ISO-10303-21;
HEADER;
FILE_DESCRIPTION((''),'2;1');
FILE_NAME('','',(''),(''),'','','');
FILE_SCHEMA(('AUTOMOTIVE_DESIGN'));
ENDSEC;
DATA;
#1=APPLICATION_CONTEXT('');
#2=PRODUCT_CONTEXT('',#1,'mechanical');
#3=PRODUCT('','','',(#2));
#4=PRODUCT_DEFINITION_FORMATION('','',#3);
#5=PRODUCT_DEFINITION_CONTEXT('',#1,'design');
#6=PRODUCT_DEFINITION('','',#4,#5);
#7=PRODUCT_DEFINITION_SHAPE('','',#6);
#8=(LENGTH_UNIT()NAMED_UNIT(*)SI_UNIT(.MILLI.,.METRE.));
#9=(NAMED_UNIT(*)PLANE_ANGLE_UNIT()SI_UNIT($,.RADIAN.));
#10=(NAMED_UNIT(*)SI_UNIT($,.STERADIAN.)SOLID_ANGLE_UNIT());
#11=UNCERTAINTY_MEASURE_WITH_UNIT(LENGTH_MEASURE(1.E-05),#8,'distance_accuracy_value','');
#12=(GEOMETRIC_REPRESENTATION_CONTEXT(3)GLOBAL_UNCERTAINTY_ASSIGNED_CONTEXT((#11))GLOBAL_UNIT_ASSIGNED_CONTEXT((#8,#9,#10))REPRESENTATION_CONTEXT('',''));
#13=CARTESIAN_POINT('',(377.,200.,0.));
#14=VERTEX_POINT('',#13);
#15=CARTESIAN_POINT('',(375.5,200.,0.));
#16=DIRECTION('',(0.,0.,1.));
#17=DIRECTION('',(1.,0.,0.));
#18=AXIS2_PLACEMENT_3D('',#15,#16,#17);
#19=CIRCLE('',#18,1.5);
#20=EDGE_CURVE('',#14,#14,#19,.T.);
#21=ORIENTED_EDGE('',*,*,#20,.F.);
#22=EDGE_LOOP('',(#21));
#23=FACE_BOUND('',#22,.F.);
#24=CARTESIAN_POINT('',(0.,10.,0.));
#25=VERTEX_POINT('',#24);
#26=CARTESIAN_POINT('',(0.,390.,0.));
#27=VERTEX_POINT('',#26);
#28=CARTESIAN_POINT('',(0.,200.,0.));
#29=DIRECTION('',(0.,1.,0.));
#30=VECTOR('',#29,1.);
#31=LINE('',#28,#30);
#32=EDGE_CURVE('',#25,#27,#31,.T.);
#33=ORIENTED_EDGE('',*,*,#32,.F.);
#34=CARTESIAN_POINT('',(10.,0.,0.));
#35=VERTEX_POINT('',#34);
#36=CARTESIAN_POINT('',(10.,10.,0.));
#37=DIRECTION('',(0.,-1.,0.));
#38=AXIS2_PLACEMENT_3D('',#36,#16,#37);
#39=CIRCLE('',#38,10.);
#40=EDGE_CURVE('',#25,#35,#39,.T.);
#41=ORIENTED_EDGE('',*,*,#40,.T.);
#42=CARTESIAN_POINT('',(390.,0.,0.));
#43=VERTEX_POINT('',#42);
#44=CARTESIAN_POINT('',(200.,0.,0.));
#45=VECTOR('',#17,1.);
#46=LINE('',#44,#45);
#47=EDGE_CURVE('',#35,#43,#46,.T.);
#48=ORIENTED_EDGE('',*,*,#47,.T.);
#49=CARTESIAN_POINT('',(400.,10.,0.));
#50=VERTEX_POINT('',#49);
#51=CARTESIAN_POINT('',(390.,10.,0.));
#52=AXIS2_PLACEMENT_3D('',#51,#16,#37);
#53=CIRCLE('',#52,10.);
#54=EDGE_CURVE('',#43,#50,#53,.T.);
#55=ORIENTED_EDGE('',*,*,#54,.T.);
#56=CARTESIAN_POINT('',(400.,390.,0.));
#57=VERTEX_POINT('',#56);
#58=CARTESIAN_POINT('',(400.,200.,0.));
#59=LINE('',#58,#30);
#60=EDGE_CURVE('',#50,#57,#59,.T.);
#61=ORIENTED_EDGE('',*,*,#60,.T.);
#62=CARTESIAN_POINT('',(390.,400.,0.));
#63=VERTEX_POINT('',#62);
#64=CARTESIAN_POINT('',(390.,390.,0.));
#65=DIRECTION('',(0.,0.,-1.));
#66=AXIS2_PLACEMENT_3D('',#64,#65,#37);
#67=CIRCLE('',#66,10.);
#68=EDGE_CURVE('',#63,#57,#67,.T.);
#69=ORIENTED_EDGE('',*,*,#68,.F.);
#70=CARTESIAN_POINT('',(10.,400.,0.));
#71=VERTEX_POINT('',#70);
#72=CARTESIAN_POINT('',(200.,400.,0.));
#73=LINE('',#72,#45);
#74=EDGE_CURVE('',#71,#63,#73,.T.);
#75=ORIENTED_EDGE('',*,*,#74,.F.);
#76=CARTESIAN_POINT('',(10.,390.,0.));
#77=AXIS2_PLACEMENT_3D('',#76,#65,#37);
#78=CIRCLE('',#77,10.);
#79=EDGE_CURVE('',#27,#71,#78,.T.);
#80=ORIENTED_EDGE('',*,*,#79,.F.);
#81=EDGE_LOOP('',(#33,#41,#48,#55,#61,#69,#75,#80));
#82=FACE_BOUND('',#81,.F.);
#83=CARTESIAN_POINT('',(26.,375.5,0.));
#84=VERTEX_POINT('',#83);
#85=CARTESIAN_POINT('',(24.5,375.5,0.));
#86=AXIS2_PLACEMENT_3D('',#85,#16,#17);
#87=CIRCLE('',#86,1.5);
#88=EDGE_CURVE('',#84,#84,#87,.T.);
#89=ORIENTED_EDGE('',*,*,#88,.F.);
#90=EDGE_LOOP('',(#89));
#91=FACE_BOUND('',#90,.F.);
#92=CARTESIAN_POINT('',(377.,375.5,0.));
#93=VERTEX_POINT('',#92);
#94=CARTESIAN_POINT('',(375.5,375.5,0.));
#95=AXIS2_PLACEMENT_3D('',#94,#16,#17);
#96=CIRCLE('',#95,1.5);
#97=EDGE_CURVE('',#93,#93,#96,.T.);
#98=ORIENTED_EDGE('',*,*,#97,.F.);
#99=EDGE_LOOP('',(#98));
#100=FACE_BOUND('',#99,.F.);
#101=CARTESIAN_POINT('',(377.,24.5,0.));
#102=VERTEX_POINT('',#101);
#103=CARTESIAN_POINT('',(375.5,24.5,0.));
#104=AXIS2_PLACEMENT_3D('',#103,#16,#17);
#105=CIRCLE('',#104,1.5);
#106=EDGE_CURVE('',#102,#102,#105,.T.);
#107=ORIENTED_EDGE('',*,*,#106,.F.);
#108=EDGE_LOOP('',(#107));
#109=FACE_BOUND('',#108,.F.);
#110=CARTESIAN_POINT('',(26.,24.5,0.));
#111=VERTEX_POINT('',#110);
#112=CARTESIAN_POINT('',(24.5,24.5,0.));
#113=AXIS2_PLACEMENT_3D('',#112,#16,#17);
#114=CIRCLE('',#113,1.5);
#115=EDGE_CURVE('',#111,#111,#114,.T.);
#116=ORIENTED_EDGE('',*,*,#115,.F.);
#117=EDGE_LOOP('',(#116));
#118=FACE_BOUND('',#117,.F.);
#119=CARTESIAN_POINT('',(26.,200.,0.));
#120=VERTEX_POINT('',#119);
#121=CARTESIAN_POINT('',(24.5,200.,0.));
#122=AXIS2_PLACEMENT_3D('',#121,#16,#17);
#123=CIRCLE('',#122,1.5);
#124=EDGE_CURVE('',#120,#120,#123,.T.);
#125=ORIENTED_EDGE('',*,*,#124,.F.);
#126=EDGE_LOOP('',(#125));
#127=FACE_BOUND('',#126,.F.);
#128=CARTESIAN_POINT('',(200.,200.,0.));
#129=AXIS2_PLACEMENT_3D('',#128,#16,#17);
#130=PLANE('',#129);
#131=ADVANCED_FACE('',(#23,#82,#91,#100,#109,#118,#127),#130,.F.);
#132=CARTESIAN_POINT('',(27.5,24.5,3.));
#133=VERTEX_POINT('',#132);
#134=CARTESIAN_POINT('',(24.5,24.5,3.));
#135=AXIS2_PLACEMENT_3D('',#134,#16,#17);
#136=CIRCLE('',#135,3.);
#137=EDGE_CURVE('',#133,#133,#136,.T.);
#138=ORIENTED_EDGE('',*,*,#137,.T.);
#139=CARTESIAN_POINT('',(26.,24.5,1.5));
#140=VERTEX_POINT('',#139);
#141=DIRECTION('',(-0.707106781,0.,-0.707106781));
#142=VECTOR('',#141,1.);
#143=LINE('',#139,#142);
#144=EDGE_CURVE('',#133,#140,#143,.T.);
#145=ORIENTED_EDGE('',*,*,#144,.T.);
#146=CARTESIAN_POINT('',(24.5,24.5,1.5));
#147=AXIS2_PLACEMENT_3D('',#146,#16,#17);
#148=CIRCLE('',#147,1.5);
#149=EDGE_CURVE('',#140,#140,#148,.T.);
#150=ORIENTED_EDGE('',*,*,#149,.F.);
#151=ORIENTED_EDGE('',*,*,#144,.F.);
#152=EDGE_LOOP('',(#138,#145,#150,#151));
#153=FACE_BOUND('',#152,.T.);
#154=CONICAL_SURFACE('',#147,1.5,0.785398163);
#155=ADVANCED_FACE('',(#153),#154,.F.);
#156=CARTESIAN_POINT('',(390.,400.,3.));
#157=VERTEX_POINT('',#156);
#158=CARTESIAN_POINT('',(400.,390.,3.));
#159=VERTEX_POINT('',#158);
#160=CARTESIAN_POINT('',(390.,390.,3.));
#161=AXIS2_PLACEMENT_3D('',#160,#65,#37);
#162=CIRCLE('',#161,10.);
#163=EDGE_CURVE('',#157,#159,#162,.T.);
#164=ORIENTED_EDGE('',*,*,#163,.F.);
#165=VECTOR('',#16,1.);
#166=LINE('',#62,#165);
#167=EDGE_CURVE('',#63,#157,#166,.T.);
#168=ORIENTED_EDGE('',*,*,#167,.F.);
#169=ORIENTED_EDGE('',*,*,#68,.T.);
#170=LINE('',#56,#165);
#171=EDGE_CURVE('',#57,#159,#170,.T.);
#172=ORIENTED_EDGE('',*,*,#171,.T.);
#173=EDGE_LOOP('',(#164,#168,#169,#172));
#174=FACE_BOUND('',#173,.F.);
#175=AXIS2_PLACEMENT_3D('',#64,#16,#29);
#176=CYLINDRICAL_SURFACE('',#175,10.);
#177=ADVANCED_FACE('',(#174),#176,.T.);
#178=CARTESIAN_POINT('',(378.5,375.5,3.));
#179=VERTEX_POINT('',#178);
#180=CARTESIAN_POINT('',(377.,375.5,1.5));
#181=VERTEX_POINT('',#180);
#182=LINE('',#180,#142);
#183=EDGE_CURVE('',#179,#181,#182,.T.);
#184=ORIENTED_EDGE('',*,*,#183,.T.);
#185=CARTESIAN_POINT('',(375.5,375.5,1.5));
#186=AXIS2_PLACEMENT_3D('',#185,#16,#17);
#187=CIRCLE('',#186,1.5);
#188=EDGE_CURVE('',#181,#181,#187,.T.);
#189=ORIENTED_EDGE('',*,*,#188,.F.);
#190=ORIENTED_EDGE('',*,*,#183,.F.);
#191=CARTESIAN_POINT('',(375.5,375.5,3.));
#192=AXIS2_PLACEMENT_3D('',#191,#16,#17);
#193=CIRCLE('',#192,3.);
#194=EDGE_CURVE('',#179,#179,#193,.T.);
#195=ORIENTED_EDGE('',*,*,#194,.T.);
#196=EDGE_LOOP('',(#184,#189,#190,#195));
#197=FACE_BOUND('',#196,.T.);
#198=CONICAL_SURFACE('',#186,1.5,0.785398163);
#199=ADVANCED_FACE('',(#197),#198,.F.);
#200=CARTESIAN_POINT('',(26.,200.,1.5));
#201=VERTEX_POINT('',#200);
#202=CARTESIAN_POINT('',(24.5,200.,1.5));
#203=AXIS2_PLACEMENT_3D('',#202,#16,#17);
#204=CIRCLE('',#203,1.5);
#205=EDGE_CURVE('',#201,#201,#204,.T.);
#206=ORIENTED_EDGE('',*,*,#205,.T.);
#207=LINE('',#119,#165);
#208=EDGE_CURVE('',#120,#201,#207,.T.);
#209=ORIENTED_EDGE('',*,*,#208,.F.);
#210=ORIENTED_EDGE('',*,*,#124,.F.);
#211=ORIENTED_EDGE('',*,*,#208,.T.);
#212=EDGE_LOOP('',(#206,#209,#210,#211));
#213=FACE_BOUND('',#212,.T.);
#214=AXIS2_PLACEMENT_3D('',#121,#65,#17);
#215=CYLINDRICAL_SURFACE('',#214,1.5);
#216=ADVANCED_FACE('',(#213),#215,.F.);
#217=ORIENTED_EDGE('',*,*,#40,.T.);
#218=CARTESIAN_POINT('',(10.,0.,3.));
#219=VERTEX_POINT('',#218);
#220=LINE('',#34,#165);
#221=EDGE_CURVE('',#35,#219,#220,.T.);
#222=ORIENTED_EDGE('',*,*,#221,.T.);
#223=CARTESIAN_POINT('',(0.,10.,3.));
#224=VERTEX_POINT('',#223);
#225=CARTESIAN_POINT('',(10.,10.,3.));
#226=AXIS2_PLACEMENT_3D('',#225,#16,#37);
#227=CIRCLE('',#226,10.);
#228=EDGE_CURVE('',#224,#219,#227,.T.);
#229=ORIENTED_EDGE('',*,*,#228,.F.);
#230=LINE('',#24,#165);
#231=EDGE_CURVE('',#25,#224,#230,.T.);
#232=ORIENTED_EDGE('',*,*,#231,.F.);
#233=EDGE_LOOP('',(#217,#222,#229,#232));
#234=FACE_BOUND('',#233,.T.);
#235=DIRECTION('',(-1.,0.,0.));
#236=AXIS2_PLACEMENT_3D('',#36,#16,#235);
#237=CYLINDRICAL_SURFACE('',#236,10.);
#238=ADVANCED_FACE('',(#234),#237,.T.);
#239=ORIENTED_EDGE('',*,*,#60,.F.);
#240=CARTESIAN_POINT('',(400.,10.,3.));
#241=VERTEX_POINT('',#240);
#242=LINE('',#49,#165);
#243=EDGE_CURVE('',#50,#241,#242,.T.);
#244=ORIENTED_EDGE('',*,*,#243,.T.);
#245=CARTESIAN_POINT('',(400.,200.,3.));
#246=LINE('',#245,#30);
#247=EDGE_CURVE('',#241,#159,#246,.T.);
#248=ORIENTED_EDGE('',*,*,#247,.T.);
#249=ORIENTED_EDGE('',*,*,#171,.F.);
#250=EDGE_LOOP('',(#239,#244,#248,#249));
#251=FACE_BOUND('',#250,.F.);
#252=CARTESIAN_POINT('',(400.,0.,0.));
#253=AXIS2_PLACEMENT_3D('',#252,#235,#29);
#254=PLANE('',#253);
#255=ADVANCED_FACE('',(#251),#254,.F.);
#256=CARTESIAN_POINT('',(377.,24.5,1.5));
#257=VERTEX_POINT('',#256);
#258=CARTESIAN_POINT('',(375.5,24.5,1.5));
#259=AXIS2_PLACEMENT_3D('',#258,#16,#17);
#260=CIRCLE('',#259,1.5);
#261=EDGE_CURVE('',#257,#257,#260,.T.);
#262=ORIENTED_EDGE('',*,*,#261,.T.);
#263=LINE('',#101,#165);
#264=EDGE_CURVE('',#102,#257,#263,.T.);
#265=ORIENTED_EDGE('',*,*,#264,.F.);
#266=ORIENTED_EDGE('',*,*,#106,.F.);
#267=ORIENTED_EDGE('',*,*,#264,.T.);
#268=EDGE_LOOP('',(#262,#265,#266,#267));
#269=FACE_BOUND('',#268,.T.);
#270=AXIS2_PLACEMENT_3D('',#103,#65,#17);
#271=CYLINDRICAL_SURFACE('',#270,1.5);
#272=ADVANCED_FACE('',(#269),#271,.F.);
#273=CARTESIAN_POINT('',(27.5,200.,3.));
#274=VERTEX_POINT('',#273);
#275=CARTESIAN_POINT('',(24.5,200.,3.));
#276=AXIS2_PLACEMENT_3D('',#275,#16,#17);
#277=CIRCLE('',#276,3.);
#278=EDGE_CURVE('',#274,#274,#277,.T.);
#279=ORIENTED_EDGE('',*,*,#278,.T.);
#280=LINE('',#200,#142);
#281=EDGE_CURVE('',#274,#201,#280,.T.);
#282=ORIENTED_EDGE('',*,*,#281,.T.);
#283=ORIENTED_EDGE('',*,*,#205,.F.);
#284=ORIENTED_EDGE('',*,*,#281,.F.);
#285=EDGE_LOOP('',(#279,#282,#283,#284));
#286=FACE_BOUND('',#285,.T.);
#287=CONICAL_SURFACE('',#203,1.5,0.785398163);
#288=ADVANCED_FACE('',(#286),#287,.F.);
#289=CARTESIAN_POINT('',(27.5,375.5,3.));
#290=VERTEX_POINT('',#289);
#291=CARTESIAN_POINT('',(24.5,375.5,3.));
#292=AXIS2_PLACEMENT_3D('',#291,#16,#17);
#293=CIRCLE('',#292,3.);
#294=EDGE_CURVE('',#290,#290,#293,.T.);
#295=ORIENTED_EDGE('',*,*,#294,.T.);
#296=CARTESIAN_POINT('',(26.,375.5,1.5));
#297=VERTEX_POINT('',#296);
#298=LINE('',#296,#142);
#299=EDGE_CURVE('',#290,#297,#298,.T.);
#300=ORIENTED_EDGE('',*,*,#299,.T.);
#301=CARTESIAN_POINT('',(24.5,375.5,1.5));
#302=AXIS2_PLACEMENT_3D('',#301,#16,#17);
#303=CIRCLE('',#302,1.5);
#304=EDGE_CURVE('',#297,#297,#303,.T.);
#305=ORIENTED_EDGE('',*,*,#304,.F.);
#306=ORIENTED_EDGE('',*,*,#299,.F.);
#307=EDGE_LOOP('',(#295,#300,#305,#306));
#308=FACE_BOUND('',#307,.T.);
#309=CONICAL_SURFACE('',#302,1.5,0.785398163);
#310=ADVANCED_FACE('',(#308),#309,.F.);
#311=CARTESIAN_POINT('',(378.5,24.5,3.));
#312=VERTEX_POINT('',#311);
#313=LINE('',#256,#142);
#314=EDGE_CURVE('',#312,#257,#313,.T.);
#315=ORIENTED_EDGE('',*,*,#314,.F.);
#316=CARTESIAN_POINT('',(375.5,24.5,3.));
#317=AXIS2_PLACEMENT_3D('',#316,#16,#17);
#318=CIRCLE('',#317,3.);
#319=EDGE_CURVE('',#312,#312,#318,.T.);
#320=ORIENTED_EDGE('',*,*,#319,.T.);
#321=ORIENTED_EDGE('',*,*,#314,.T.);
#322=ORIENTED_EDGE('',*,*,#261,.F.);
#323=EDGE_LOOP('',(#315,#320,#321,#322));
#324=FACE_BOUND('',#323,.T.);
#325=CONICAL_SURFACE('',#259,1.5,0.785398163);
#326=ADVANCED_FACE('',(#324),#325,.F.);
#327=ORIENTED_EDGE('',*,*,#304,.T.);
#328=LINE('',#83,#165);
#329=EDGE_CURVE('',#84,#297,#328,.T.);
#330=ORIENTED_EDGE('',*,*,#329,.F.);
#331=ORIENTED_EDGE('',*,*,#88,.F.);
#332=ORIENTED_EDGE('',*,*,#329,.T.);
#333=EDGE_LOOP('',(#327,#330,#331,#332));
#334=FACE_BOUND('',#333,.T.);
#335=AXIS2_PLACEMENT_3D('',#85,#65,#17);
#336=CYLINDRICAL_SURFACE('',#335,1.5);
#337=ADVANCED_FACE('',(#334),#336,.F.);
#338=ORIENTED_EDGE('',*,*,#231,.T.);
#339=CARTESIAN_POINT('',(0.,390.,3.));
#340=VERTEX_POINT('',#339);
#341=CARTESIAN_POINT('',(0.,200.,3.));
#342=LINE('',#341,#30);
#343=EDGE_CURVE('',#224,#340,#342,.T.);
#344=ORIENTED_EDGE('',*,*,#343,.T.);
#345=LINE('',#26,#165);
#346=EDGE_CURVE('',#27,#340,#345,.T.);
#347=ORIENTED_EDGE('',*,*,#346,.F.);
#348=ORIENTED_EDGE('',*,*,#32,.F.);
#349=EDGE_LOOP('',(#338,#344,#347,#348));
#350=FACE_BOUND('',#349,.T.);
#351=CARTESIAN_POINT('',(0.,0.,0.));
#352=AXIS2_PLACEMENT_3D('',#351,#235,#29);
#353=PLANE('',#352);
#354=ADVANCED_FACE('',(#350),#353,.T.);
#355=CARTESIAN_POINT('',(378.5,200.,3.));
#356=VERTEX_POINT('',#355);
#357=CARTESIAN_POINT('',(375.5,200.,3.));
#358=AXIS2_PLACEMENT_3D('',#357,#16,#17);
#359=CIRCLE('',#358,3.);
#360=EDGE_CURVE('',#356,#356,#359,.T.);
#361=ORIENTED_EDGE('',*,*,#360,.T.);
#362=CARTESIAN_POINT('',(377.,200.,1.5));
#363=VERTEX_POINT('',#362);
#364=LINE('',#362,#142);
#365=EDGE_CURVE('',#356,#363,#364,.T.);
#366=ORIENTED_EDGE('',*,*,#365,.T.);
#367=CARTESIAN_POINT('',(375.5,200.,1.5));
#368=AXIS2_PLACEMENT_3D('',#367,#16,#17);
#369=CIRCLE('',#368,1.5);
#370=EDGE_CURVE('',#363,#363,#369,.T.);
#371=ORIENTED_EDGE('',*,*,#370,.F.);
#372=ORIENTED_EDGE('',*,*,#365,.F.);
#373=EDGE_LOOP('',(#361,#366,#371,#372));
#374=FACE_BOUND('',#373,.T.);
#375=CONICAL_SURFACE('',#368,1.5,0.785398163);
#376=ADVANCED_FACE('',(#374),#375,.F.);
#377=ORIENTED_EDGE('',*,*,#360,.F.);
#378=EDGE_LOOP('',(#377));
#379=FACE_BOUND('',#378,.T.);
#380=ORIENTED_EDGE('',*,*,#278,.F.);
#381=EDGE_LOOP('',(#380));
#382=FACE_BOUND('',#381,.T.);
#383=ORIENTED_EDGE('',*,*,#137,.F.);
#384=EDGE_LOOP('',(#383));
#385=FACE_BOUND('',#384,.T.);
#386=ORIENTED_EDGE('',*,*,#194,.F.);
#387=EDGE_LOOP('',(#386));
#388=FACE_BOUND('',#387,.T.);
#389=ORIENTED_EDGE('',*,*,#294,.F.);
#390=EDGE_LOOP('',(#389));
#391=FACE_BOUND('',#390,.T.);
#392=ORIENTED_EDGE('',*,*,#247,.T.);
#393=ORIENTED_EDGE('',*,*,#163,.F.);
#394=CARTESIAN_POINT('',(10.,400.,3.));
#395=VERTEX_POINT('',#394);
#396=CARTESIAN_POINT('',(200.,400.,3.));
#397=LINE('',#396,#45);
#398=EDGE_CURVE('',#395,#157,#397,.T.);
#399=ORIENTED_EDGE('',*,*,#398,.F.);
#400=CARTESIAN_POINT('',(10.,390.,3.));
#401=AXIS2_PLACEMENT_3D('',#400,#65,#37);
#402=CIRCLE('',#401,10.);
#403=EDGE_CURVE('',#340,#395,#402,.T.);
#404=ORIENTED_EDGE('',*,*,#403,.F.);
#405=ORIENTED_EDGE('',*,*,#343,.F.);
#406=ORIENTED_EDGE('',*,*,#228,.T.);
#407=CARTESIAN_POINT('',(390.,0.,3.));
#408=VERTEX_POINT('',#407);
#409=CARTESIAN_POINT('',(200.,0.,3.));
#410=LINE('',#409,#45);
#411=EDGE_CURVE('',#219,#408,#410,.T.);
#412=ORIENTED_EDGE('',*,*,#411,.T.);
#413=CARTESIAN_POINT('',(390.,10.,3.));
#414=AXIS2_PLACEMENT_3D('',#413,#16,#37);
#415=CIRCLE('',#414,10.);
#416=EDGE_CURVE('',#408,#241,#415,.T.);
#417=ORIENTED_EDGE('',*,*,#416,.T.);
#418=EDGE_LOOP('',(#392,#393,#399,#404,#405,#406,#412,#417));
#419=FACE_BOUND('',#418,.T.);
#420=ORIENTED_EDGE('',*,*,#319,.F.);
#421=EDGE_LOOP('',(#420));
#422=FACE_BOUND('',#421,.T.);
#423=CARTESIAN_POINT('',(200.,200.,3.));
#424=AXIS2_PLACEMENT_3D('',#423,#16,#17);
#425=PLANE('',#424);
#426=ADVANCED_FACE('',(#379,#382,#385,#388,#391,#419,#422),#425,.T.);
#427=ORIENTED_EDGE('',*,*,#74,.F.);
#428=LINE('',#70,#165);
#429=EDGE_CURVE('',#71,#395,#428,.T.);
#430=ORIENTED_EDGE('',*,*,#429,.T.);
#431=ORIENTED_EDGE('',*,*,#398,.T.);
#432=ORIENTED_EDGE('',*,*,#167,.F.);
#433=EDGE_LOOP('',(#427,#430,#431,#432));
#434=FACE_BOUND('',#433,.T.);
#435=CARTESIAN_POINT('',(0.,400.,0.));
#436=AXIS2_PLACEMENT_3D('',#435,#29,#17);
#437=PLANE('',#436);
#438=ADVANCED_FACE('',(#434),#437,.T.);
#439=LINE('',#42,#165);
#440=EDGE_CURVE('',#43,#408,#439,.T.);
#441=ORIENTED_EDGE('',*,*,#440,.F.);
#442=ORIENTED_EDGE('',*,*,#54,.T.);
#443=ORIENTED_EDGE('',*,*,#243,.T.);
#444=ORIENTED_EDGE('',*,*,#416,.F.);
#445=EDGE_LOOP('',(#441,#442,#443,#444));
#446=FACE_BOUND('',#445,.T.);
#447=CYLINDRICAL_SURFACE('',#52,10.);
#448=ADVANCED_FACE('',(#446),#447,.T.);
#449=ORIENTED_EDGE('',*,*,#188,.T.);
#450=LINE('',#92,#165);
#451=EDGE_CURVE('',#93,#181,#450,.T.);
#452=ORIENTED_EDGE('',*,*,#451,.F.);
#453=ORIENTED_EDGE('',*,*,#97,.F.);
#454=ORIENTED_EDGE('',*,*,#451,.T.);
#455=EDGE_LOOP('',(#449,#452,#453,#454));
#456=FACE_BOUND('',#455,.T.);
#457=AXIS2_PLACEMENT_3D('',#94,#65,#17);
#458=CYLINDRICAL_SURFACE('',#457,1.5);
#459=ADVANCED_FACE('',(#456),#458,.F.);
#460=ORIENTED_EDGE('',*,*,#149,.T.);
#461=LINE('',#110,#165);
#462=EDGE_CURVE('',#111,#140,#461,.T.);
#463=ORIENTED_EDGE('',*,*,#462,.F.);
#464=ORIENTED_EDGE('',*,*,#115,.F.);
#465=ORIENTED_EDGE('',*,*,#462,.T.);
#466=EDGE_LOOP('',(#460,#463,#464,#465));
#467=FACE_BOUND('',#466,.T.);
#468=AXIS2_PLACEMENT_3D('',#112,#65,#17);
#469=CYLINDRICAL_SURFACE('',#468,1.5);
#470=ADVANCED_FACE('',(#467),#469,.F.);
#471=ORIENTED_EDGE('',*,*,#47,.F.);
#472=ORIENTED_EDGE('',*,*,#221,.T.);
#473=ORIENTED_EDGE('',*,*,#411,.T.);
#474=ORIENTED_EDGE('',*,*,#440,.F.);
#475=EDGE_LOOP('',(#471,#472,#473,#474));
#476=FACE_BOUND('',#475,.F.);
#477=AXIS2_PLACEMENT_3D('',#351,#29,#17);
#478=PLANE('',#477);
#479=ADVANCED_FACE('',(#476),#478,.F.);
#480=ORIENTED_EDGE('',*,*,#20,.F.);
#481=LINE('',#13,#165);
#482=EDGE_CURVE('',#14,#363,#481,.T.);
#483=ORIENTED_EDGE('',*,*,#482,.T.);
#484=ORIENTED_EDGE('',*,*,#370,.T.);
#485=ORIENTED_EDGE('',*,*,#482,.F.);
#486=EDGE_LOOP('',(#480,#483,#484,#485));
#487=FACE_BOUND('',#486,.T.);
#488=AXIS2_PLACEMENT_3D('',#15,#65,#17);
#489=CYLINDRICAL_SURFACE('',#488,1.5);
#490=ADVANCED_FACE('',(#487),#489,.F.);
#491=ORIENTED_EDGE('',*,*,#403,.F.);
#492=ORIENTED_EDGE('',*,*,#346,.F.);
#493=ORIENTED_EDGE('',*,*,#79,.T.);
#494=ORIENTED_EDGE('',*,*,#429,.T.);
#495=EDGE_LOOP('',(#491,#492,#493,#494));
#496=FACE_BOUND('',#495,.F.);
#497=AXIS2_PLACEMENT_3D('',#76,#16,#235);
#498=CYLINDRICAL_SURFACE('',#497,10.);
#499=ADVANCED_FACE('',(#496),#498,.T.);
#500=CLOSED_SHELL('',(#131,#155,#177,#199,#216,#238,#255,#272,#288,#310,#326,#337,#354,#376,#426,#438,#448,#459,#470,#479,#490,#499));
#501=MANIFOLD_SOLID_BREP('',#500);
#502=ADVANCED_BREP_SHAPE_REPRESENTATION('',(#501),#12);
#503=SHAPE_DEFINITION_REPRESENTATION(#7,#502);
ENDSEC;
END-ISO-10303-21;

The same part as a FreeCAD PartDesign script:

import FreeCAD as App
import Part
import Sketcher


def edges_at(feature, points):
    """Names of the edges that pass closest to the given points."""
    edges = feature.Shape.Edges
    near = lambda p: min(range(len(edges)), key=lambda i: edges[i].distToShape(Part.Vertex(*p))[0])
    return sorted({f"Edge{near(p) + 1}" for p in points})

doc = App.newDocument("Part")
body = doc.addObject("PartDesign::Body", "Body")

sketch1 = body.newObject("Sketcher::SketchObject", "Sketch")
sketch1.AttachmentSupport = (doc.getObject("XY_Plane"), [""])
sketch1.MapMode = "FlatFace"
sketch1.addGeometry([
    Part.LineSegment(App.Vector(0, 400, 0), App.Vector(0, 0, 0)),
    Part.LineSegment(App.Vector(0, 0, 0), App.Vector(400, 0, 0)),
    Part.LineSegment(App.Vector(400, 0, 0), App.Vector(400, 400, 0)),
    Part.LineSegment(App.Vector(400, 400, 0), App.Vector(0, 400, 0)),
    Part.Circle(App.Vector(24.5, 24.5, 0), App.Vector(0, 0, 1), 1.5),
    Part.Circle(App.Vector(375.5, 24.5, 0), App.Vector(0, 0, 1), 1.5),
    Part.Circle(App.Vector(24.5, 200, 0), App.Vector(0, 0, 1), 1.5),
    Part.Circle(App.Vector(24.5, 375.5, 0), App.Vector(0, 0, 1), 1.5),
    Part.Circle(App.Vector(375.5, 200, 0), App.Vector(0, 0, 1), 1.5),
    Part.Circle(App.Vector(375.5, 375.5, 0), App.Vector(0, 0, 1), 1.5),
], False)
sketch1.addConstraint([
    Sketcher.Constraint("Coincident", 0, 2, 1, 1),
    Sketcher.Constraint("Coincident", 1, 2, 2, 1),
    Sketcher.Constraint("Coincident", 2, 2, 3, 1),
    Sketcher.Constraint("Coincident", 3, 2, 0, 1),
    Sketcher.Constraint("Vertical", 0),
    Sketcher.Constraint("Horizontal", 1),
    Sketcher.Constraint("Vertical", 2),
    Sketcher.Constraint("Horizontal", 3),
    Sketcher.Constraint("Coincident", 0, 2, -1, 1),
    Sketcher.Constraint("Equal", 4, 5),
    Sketcher.Constraint("Equal", 5, 6),
    Sketcher.Constraint("Equal", 6, 7),
    Sketcher.Constraint("Equal", 7, 8),
    Sketcher.Constraint("Equal", 8, 9),
    Sketcher.Constraint("Horizontal", 4, 3, 5, 3),
    Sketcher.Constraint("Horizontal", 6, 3, 8, 3),
    Sketcher.Constraint("Horizontal", 7, 3, 9, 3),
    Sketcher.Constraint("Vertical", 4, 3, 6, 3),
    Sketcher.Constraint("Vertical", 6, 3, 7, 3),
    Sketcher.Constraint("Vertical", 5, 3, 8, 3),
    Sketcher.Constraint("Vertical", 8, 3, 9, 3),
    Sketcher.Constraint("Equal", 3, 0),
    Sketcher.Constraint("Diameter", 4, 3.0),
    Sketcher.Constraint("DistanceX", 1, 1, 1, 2, 400.0),
    Sketcher.Constraint("DistanceY", -1, 1, 6, 3, 200.0),
    Sketcher.Constraint("DistanceX", 4, 3, 5, 3, 351.0),
    Sketcher.Constraint("DistanceY", 4, 3, 7, 3, 351.0),
    Sketcher.Constraint("DistanceX", -1, 1, 4, 3, 24.5),
    Sketcher.Constraint("DistanceY", -1, 1, 4, 3, 24.5),
])
pad1 = body.newObject("PartDesign::Pad", "Pad")
pad1.Profile = sketch1
pad1.Length = 3
doc.recompute()

fillet = body.newObject("PartDesign::Fillet", "Fillet")
fillet.Base = (pad1, edges_at(pad1, [
    (0, 0, 1.5),
    (400, 0, 1.5),
    (400, 400, 1.5),
    (0, 400, 1.5),
]))
fillet.Radius = 10
doc.recompute()

chamfer = body.newObject("PartDesign::Chamfer", "Chamfer")
chamfer.Base = (fillet, edges_at(fillet, [
    (23, 375.5, 3),
    (23, 200, 3),
    (374, 200, 3),
    (374, 375.5, 3),
    (374, 24.5, 3),
    (23, 24.5, 3),
]))
chamfer.Size = 1.5

doc.recompute()
